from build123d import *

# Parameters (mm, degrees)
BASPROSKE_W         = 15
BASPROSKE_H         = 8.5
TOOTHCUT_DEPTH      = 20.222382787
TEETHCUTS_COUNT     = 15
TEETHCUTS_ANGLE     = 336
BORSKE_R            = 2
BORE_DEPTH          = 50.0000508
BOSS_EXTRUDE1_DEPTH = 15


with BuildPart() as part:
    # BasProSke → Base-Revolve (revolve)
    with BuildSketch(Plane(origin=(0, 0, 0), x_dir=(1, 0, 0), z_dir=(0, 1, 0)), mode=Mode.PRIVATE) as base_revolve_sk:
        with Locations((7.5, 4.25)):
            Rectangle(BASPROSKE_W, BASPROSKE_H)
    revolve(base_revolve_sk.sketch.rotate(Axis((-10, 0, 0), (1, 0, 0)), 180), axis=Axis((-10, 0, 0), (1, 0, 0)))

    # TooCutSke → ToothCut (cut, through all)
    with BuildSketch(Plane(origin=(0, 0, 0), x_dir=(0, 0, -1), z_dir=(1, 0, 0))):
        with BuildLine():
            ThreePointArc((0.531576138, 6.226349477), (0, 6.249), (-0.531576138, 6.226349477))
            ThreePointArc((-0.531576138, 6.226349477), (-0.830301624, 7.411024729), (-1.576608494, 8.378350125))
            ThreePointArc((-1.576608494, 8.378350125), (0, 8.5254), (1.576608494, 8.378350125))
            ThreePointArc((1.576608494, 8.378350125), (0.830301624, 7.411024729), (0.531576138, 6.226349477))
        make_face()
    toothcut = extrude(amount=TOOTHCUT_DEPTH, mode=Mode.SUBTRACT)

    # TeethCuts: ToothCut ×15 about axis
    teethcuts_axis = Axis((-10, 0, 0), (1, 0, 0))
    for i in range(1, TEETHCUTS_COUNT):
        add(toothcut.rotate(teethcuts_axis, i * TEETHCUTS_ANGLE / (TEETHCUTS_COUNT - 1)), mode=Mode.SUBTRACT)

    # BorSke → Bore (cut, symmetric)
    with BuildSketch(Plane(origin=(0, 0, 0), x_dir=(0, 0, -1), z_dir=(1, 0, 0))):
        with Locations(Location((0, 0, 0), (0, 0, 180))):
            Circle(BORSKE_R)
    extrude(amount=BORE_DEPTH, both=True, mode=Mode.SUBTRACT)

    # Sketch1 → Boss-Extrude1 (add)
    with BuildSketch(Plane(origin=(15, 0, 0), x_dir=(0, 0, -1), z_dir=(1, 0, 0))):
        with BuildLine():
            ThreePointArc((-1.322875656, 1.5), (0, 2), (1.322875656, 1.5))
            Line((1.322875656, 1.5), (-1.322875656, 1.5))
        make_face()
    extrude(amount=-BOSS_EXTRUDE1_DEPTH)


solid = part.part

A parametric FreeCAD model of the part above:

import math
import FreeCAD as App
import Part
import Sketcher
Q = App.Units.Quantity

doc = App.newDocument("Part")
params = doc.addObject("Spreadsheet::Sheet", "Params")
for row, (alias, value) in enumerate([
    ("sketch1_width", "15 mm"),
    ("sketch1_height", "8.5 mm"),
    ("revolution_angle", "360 deg"),
    ("sketch2_radius", "3 mm"),
    ("sketch3_diameter", "4 mm"),
    ("pocket2_length", "100.000102 mm"),
    ("sketch4_radius", "2 mm"),
    ("pad1_length", "15 mm"),
], start=1):
    params.set(f"A{row}", alias)
    params.set(f"B{row}", "=" + value)
    params.setAlias(f"B{row}", alias)

body = doc.addObject("PartDesign::Body", "Body")

sketch1 = body.newObject("Sketcher::SketchObject", "Sketch")
sketch1.AttachmentSupport = (doc.getObject("XZ_Plane"), [""])
sketch1.MapMode = "FlatFace"
sketch1.addGeometry([
    Part.LineSegment(App.Vector(0, -8.5, 0), App.Vector(0, 0, 0)),
    Part.LineSegment(App.Vector(0, 0, 0), App.Vector(15, 0, 0)),
    Part.LineSegment(App.Vector(15, 0, 0), App.Vector(15, -8.5, 0)),
    Part.LineSegment(App.Vector(15, -8.5, 0), App.Vector(0, -8.5, 0)),
], False)
sketch1.addConstraint([
    Sketcher.Constraint("Coincident", 0, 2, 1, 1),
    Sketcher.Constraint("Coincident", 1, 2, 2, 1),
    Sketcher.Constraint("Coincident", 2, 2, 3, 1),
    Sketcher.Constraint("Coincident", 3, 2, 0, 1),
    Sketcher.Constraint("Vertical", 0),
    Sketcher.Constraint("Horizontal", 1),
    Sketcher.Constraint("Vertical", 2),
    Sketcher.Constraint("Horizontal", 3),
    Sketcher.Constraint("Coincident", 0, 2, -1, 1),
    Sketcher.Constraint("DistanceX", 1, 1, 1, 2, Q("15 mm")),
    Sketcher.Constraint("DistanceY", 0, 1, 0, 2, Q("8.5 mm")),
])
sketch1.setExpression("Constraints[9]", "Params.sketch1_width")
sketch1.setExpression("Constraints[10]", "Params.sketch1_height")
revolution = body.newObject("PartDesign::Revolution", "Revolution")
revolution.Profile = sketch1
revolution.ReferenceAxis = (sketch1, ["H_Axis"])
revolution.setExpression("Angle", "Params.revolution_angle")

sketch2 = body.newObject("Sketcher::SketchObject", "Sketch001")
sketch2.AttachmentSupport = (doc.getObject("YZ_Plane"), [""])
sketch2.MapMode = "FlatFace"
sketch2.addGeometry([
    Part.ArcOfCircle(Part.Circle(App.Vector(0, 0, 0), App.Vector(0, 0, 1), 6.249), math.radians(-4.879808), math.radians(4.879808)),
    Part.ArcOfCircle(Part.Circle(App.Vector(6.100541, -3.528937, 0), App.Vector(0, 0, 1), 3), math.radians(40.600148), math.radians(87.596535)),
    Part.ArcOfCircle(Part.Circle(App.Vector(0, 0, 0), App.Vector(0, 0, 1), 8.5254), math.radians(-10.657094), math.radians(10.657094)),
    Part.ArcOfCircle(Part.Circle(App.Vector(6.100541, 3.528937, 0), App.Vector(0, 0, 1), 3), math.radians(-87.596535), math.radians(-40.600148)),
], False)
sketch2.addConstraint([
    Sketcher.Constraint("Coincident", 0, 1, 1, 2),
    Sketcher.Constraint("Coincident", 1, 1, 2, 1),
    Sketcher.Constraint("Coincident", 2, 2, 3, 2),
    Sketcher.Constraint("Coincident", 3, 1, 0, 2),
    Sketcher.Constraint("Coincident", 0, 3, -1, 1),
    Sketcher.Constraint("Coincident", 2, 3, -1, 1),
    Sketcher.Constraint("Equal", 1, 3),
    Sketcher.Constraint("Symmetric", 1, 3, 3, 3, -1),
    Sketcher.Constraint("Radius", 1, Q("3 mm")),
    Sketcher.Constraint("Radius", 0, Q("6.249 mm")),
    Sketcher.Constraint("Radius", 2, Q("8.5254 mm")),
    Sketcher.Constraint("DistanceX", 0, 1, 1, 1, Q("2.152001 mm")),
    Sketcher.Constraint("DistanceX", -1, 1, 1, 3, Q("6.100541 mm")),
])
sketch2.setExpression("Constraints[8]", "Params.sketch2_radius")
pocket1 = body.newObject("PartDesign::Pocket", "Pocket")
pocket1.Profile = sketch2
pocket1.Type = "ThroughAll"
pocket1.Reversed = True
doc.recompute()

polarpattern = body.newObject("PartDesign::PolarPattern", "PolarPattern")
polarpattern.Originals = [pocket1]
polarpattern.Axis = (doc.getObject("X_Axis"), [""])
polarpattern.Angle = 360
polarpattern.Occurrences = 15
body.Tip = polarpattern

sketch3 = body.newObject("Sketcher::SketchObject", "Sketch002")
sketch3.AttachmentSupport = (doc.getObject("YZ_Plane"), [""])
sketch3.MapMode = "FlatFace"
sketch3.addGeometry(Part.Circle(App.Vector(0, 0, 0), App.Vector(0, 0, 1), 2), False)
sketch3.addConstraint([
    Sketcher.Constraint("Coincident", 0, 3, -1, 1),
    Sketcher.Constraint("Diameter", 0, Q("4 mm")),
])
sketch3.setExpression("Constraints[1]", "Params.sketch3_diameter")
pocket2 = body.newObject("PartDesign::Pocket", "Pocket001")
pocket2.Profile = sketch3
pocket2.setExpression("Length", "Params.pocket2_length")
pocket2.Midplane = True

sketch4 = body.newObject("Sketcher::SketchObject", "Sketch003")
sketch4.AttachmentSupport = (doc.getObject("YZ_Plane"), [""])
sketch4.MapMode = "FlatFace"
sketch4.AttachmentOffset = App.Placement(App.Vector(0, 0, 15), App.Rotation())
sketch4.addGeometry([
    Part.ArcOfCircle(Part.Circle(App.Vector(0, 0, 0), App.Vector(0, 0, 1), 2), math.radians(-41.409622), math.radians(41.409622)),
    Part.LineSegment(App.Vector(1.5, 1.322876, 0), App.Vector(1.5, -1.322876, 0)),
], False)
sketch4.addConstraint([
    Sketcher.Constraint("Coincident", 0, 1, 1, 2),
    Sketcher.Constraint("Coincident", 1, 1, 0, 2),
    Sketcher.Constraint("Vertical", 1),
    Sketcher.Constraint("Coincident", 0, 3, -1, 1),
    Sketcher.Constraint("Radius", 0, Q("2 mm")),
    Sketcher.Constraint("DistanceX", -1, 1, 0, 1, Q("1.5 mm")),
])
sketch4.setExpression("Constraints[4]", "Params.sketch4_radius")
pad1 = body.newObject("PartDesign::Pad", "Pad")
pad1.Profile = sketch4
pad1.setExpression("Length", "Params.pad1_length")
pad1.Reversed = True

doc.recompute()
